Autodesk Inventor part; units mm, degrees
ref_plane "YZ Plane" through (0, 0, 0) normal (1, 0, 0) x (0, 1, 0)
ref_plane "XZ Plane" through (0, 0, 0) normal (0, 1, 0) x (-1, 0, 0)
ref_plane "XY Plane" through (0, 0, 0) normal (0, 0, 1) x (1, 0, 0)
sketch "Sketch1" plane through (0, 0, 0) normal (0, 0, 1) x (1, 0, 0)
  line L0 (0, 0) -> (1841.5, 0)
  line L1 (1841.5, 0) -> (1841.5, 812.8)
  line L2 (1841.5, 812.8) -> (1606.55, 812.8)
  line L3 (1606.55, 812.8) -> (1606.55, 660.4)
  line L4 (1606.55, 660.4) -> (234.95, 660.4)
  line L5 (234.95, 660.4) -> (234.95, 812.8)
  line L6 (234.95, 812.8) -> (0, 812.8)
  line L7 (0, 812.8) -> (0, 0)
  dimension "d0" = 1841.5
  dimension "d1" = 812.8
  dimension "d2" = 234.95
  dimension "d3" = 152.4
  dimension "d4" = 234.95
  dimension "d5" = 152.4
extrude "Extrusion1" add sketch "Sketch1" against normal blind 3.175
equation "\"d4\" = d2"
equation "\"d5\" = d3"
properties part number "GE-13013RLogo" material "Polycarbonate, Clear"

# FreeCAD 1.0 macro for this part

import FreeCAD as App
import Part
import Sketcher
from FreeCAD import Vector
Q = App.Units.Quantity

doc = App.newDocument("Part")
body = doc.addObject("PartDesign::Body", "Body")

sketch1 = body.newObject("Sketcher::SketchObject", "Sketch")
sketch1.AttachmentSupport = (doc.getObject("XY_Plane"), [""])
sketch1.MapMode = "FlatFace"
sketch1.addGeometry([
    Part.LineSegment(Vector(0, 813, 0), Vector(0, 0, 0)),
    Part.LineSegment(Vector(0, 0, 0), Vector(1842, 0, 0)),
    Part.LineSegment(Vector(1842, 0, 0), Vector(1842, 813, 0)),
    Part.LineSegment(Vector(1842, 813, 0), Vector(1607, 813, 0)),
    Part.LineSegment(Vector(1607, 813, 0), Vector(1607, 660, 0)),
    Part.LineSegment(Vector(1607, 660, 0), Vector(235, 660, 0)),
    Part.LineSegment(Vector(235, 660, 0), Vector(235, 813, 0)),
    Part.LineSegment(Vector(235, 813, 0), Vector(0, 813, 0)),
], False)
sketch1.addConstraint([
    Sketcher.Constraint("Coincident", 0, 2, 1, 1),
    Sketcher.Constraint("Coincident", 1, 2, 2, 1),
    Sketcher.Constraint("Coincident", 2, 2, 3, 1),
    Sketcher.Constraint("Coincident", 3, 2, 4, 1),
    Sketcher.Constraint("Coincident", 4, 2, 5, 1),
    Sketcher.Constraint("Coincident", 5, 2, 6, 1),
    Sketcher.Constraint("Coincident", 6, 2, 7, 1),
    Sketcher.Constraint("Coincident", 7, 2, 0, 1),
    Sketcher.Constraint("Vertical", 0),
    Sketcher.Constraint("Horizontal", 1),
    Sketcher.Constraint("Vertical", 2),
    Sketcher.Constraint("Horizontal", 3),
    Sketcher.Constraint("Vertical", 4),
    Sketcher.Constraint("Horizontal", 5),
    Sketcher.Constraint("Vertical", 6),
    Sketcher.Constraint("Horizontal", 7),
    Sketcher.Constraint("Coincident", 0, 2, -1, 1),
    Sketcher.Constraint("Horizontal", 3, 2, 6, 2),
    Sketcher.Constraint("Equal", 3, 7),
    Sketcher.Constraint("DistanceY", 0, 2, 0, 1, Q("32 in")),
    Sketcher.Constraint("DistanceY", 4, 2, 4, 1, Q("6 in")),
    Sketcher.Constraint("DistanceX", 1, 1, 1, 2, Q("72.5 in")),
    Sketcher.Constraint("DistanceX", 3, 2, 3, 1, Q("9.25 in")),
])
pad1 = body.newObject("PartDesign::Pad", "Pad")
pad1.Profile = sketch1
pad1.Length = Q("0.125 in")
pad1.Reversed = True

doc.recompute()
